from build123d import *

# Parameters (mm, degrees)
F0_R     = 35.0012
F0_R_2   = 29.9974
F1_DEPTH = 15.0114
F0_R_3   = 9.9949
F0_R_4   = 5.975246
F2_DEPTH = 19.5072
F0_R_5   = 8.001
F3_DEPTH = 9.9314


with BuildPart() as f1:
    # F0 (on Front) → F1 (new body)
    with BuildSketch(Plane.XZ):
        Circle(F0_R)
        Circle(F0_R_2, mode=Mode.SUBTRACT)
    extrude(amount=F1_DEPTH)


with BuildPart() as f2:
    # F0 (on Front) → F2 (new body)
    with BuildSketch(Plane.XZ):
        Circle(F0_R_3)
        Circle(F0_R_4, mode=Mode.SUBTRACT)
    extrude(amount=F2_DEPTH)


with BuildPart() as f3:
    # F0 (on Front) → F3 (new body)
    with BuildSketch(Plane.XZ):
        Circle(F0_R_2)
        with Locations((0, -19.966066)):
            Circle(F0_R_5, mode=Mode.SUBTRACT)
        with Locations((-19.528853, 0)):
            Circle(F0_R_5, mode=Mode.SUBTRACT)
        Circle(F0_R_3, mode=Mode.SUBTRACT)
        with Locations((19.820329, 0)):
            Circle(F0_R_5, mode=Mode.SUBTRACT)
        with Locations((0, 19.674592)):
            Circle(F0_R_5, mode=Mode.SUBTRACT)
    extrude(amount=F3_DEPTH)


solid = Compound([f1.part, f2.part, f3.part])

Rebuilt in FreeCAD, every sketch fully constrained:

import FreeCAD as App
import Part
import Sketcher
Q = App.Units.Quantity

doc = App.newDocument("Part")
params = doc.addObject("Spreadsheet::Sheet", "Params")
for row, (alias, value) in enumerate([
    ("sketch1_diameter", "2.756 in"),
    ("sketch1_diameter2", "2.362 in"),
    ("pad1_length", "0.591 in"),
    ("sketch2_diameter", "0.787 in"),
    ("pad2_length", "0.768 in"),
    ("sketch3_diameter", "0.63 in"),
    ("sketch3_diameter2", "2.362 in"),
    ("sketch3_diameter3", "0.787 in"),
    ("pad3_length", "0.391 in"),
], start=1):
    params.set(f"A{row}", alias)
    params.set(f"B{row}", "=" + value)
    params.setAlias(f"B{row}", alias)

body = doc.addObject("PartDesign::Body", "Body")

# Sketch on XZ plane
sketch1 = doc.addObject("Sketcher::SketchObject", "Sketch")
body.addObject(sketch1)
sketch1.AttachmentSupport = (doc.XZ_Plane, [""])
sketch1.MapMode = "FlatFace"
sketch1.addGeometry([
    Part.Circle(App.Vector(0, 0, 0), App.Vector(0, 0, 1), 35.0012),
    Part.Circle(App.Vector(0, 0, 0), App.Vector(0, 0, 1), 29.9974),
], False)
sketch1.addConstraint([
    Sketcher.Constraint("Coincident", 0, 3, -1, 1),
    Sketcher.Constraint("Coincident", 1, 3, -1, 1),
    Sketcher.Constraint("Diameter", 0, Q("2.756 in")),
    Sketcher.Constraint("Diameter", 1, Q("2.362 in")),
])
sketch1.setExpression("Constraints[2]", "Params.sketch1_diameter")
sketch1.setExpression("Constraints[3]", "Params.sketch1_diameter2")
pad1 = doc.addObject("PartDesign::Pad", "Pad")
body.addObject(pad1)
pad1.Profile = sketch1
pad1.setExpression("Length", "Params.pad1_length")
body2 = doc.addObject("PartDesign::Body", "Body001")

# Sketch on XZ plane
sketch2 = doc.addObject("Sketcher::SketchObject", "Sketch001")
body2.addObject(sketch2)
sketch2.AttachmentSupport = (doc.getObject("XZ_Plane001"), [""])
sketch2.MapMode = "FlatFace"
sketch2.addGeometry([
    Part.Circle(App.Vector(0, 0, 0), App.Vector(0, 0, 1), 9.9949),
    Part.Circle(App.Vector(0, 0, 0), App.Vector(0, 0, 1), 5.975246),
], False)
sketch2.addConstraint([
    Sketcher.Constraint("Coincident", 0, 3, -1, 1),
    Sketcher.Constraint("Coincident", 1, 3, -1, 1),
    Sketcher.Constraint("Diameter", 0, Q("0.787 in")),
    Sketcher.Constraint("Diameter", 1, Q("11.950492 mm")),
])
sketch2.setExpression("Constraints[2]", "Params.sketch2_diameter")
pad2 = doc.addObject("PartDesign::Pad", "Pad001")
body2.addObject(pad2)
pad2.Profile = sketch2
pad2.setExpression("Length", "Params.pad2_length")
body3 = doc.addObject("PartDesign::Body", "Body002")

# Sketch on XZ plane
sketch3 = doc.addObject("Sketcher::SketchObject", "Sketch002")
body3.addObject(sketch3)
sketch3.AttachmentSupport = (doc.getObject("XZ_Plane002"), [""])
sketch3.MapMode = "FlatFace"
sketch3.addGeometry([
    Part.Circle(App.Vector(0, 0, 0), App.Vector(0, 0, 1), 29.9974),  # 0
    Part.Circle(App.Vector(0, -19.966066, 0), App.Vector(0, 0, 1), 8.001),  # 1
    Part.Circle(App.Vector(-19.528853, 0, 0), App.Vector(0, 0, 1), 8.001),  # 2
    Part.Circle(App.Vector(0, 0, 0), App.Vector(0, 0, 1), 9.9949),  # 3
    Part.Circle(App.Vector(0, 19.674592, 0), App.Vector(0, 0, 1), 8.001),  # 4
    Part.Circle(App.Vector(19.820329, 0, 0), App.Vector(0, 0, 1), 8.001),  # 5
], False)
sketch3.addConstraint([
    Sketcher.Constraint("Coincident", 0, 3, -1, 1),
    Sketcher.Constraint("Coincident", 3, 3, -1, 1),
    Sketcher.Constraint("Equal", 1, 2),
    Sketcher.Constraint("Equal", 2, 4),
    Sketcher.Constraint("Equal", 4, 5),
    Sketcher.Constraint("PointOnObject", 1, 3, -2),
    Sketcher.Constraint("PointOnObject", 2, 3, -1),
    Sketcher.Constraint("PointOnObject", 4, 3, -2),
    Sketcher.Constraint("PointOnObject", 5, 3, -1),
    Sketcher.Constraint("Diameter", 1, Q("0.63 in")),
    Sketcher.Constraint("Diameter", 0, Q("2.362 in")),
    Sketcher.Constraint("Diameter", 3, Q("0.787 in")),
    Sketcher.Constraint("DistanceX", -1, 1, 5, 3, Q("19.820329 mm")),
    Sketcher.Constraint("DistanceY", 1, 3, 4, 3, Q("39.640658 mm")),
    Sketcher.Constraint("DistanceY", 1, 3, -1, 1, Q("19.966066 mm")),
    Sketcher.Constraint("DistanceX", 2, 3, -1, 1, Q("19.528853 mm")),
])
sketch3.setExpression("Constraints[9]", "Params.sketch3_diameter")
sketch3.setExpression("Constraints[10]", "Params.sketch3_diameter2")
sketch3.setExpression("Constraints[11]", "Params.sketch3_diameter3")
pad3 = doc.addObject("PartDesign::Pad", "Pad002")
body3.addObject(pad3)
pad3.Profile = sketch3
pad3.setExpression("Length", "Params.pad3_length")

doc.recompute()
